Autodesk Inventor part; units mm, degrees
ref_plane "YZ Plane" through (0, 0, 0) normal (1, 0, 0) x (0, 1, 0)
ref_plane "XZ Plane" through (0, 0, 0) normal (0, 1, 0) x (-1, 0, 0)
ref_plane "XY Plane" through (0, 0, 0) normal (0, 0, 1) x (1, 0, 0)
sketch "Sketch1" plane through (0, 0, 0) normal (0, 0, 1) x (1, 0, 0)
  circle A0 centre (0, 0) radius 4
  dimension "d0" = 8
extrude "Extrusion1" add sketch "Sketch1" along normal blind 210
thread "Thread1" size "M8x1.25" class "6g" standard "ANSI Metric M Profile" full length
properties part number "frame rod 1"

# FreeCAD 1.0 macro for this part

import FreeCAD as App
import Part
import Sketcher

V = App.Vector

doc = App.newDocument("Part")
params = doc.addObject("Spreadsheet::Sheet", "Params")
for row, (alias, value) in enumerate([
    ("sketch1_diameter", "8 mm"),
    ("pad1_length", "210 mm"),
], start=1):
    params.set(f"A{row}", alias)
    params.set(f"B{row}", "=" + value)
    params.setAlias(f"B{row}", alias)

body = doc.addObject("PartDesign::Body", "Body")

sketch1 = body.newObject("Sketcher::SketchObject", "Sketch")
sketch1.AttachmentSupport = (doc.getObject("XY_Plane"), [""])
sketch1.MapMode = "FlatFace"
sketch1.addGeometry(Part.Circle(V(0, 0, 0), V(0, 0, 1), 4), False)
sketch1.addConstraint([
    Sketcher.Constraint("Coincident", 0, 3, -1, 1),
    Sketcher.Constraint("Diameter", 0, 8.0),
])
sketch1.setExpression("Constraints[1]", "Params.sketch1_diameter")
pad1 = body.newObject("PartDesign::Pad", "Pad")
pad1.Profile = sketch1
pad1.setExpression("Length", "Params.pad1_length")

doc.recompute()
